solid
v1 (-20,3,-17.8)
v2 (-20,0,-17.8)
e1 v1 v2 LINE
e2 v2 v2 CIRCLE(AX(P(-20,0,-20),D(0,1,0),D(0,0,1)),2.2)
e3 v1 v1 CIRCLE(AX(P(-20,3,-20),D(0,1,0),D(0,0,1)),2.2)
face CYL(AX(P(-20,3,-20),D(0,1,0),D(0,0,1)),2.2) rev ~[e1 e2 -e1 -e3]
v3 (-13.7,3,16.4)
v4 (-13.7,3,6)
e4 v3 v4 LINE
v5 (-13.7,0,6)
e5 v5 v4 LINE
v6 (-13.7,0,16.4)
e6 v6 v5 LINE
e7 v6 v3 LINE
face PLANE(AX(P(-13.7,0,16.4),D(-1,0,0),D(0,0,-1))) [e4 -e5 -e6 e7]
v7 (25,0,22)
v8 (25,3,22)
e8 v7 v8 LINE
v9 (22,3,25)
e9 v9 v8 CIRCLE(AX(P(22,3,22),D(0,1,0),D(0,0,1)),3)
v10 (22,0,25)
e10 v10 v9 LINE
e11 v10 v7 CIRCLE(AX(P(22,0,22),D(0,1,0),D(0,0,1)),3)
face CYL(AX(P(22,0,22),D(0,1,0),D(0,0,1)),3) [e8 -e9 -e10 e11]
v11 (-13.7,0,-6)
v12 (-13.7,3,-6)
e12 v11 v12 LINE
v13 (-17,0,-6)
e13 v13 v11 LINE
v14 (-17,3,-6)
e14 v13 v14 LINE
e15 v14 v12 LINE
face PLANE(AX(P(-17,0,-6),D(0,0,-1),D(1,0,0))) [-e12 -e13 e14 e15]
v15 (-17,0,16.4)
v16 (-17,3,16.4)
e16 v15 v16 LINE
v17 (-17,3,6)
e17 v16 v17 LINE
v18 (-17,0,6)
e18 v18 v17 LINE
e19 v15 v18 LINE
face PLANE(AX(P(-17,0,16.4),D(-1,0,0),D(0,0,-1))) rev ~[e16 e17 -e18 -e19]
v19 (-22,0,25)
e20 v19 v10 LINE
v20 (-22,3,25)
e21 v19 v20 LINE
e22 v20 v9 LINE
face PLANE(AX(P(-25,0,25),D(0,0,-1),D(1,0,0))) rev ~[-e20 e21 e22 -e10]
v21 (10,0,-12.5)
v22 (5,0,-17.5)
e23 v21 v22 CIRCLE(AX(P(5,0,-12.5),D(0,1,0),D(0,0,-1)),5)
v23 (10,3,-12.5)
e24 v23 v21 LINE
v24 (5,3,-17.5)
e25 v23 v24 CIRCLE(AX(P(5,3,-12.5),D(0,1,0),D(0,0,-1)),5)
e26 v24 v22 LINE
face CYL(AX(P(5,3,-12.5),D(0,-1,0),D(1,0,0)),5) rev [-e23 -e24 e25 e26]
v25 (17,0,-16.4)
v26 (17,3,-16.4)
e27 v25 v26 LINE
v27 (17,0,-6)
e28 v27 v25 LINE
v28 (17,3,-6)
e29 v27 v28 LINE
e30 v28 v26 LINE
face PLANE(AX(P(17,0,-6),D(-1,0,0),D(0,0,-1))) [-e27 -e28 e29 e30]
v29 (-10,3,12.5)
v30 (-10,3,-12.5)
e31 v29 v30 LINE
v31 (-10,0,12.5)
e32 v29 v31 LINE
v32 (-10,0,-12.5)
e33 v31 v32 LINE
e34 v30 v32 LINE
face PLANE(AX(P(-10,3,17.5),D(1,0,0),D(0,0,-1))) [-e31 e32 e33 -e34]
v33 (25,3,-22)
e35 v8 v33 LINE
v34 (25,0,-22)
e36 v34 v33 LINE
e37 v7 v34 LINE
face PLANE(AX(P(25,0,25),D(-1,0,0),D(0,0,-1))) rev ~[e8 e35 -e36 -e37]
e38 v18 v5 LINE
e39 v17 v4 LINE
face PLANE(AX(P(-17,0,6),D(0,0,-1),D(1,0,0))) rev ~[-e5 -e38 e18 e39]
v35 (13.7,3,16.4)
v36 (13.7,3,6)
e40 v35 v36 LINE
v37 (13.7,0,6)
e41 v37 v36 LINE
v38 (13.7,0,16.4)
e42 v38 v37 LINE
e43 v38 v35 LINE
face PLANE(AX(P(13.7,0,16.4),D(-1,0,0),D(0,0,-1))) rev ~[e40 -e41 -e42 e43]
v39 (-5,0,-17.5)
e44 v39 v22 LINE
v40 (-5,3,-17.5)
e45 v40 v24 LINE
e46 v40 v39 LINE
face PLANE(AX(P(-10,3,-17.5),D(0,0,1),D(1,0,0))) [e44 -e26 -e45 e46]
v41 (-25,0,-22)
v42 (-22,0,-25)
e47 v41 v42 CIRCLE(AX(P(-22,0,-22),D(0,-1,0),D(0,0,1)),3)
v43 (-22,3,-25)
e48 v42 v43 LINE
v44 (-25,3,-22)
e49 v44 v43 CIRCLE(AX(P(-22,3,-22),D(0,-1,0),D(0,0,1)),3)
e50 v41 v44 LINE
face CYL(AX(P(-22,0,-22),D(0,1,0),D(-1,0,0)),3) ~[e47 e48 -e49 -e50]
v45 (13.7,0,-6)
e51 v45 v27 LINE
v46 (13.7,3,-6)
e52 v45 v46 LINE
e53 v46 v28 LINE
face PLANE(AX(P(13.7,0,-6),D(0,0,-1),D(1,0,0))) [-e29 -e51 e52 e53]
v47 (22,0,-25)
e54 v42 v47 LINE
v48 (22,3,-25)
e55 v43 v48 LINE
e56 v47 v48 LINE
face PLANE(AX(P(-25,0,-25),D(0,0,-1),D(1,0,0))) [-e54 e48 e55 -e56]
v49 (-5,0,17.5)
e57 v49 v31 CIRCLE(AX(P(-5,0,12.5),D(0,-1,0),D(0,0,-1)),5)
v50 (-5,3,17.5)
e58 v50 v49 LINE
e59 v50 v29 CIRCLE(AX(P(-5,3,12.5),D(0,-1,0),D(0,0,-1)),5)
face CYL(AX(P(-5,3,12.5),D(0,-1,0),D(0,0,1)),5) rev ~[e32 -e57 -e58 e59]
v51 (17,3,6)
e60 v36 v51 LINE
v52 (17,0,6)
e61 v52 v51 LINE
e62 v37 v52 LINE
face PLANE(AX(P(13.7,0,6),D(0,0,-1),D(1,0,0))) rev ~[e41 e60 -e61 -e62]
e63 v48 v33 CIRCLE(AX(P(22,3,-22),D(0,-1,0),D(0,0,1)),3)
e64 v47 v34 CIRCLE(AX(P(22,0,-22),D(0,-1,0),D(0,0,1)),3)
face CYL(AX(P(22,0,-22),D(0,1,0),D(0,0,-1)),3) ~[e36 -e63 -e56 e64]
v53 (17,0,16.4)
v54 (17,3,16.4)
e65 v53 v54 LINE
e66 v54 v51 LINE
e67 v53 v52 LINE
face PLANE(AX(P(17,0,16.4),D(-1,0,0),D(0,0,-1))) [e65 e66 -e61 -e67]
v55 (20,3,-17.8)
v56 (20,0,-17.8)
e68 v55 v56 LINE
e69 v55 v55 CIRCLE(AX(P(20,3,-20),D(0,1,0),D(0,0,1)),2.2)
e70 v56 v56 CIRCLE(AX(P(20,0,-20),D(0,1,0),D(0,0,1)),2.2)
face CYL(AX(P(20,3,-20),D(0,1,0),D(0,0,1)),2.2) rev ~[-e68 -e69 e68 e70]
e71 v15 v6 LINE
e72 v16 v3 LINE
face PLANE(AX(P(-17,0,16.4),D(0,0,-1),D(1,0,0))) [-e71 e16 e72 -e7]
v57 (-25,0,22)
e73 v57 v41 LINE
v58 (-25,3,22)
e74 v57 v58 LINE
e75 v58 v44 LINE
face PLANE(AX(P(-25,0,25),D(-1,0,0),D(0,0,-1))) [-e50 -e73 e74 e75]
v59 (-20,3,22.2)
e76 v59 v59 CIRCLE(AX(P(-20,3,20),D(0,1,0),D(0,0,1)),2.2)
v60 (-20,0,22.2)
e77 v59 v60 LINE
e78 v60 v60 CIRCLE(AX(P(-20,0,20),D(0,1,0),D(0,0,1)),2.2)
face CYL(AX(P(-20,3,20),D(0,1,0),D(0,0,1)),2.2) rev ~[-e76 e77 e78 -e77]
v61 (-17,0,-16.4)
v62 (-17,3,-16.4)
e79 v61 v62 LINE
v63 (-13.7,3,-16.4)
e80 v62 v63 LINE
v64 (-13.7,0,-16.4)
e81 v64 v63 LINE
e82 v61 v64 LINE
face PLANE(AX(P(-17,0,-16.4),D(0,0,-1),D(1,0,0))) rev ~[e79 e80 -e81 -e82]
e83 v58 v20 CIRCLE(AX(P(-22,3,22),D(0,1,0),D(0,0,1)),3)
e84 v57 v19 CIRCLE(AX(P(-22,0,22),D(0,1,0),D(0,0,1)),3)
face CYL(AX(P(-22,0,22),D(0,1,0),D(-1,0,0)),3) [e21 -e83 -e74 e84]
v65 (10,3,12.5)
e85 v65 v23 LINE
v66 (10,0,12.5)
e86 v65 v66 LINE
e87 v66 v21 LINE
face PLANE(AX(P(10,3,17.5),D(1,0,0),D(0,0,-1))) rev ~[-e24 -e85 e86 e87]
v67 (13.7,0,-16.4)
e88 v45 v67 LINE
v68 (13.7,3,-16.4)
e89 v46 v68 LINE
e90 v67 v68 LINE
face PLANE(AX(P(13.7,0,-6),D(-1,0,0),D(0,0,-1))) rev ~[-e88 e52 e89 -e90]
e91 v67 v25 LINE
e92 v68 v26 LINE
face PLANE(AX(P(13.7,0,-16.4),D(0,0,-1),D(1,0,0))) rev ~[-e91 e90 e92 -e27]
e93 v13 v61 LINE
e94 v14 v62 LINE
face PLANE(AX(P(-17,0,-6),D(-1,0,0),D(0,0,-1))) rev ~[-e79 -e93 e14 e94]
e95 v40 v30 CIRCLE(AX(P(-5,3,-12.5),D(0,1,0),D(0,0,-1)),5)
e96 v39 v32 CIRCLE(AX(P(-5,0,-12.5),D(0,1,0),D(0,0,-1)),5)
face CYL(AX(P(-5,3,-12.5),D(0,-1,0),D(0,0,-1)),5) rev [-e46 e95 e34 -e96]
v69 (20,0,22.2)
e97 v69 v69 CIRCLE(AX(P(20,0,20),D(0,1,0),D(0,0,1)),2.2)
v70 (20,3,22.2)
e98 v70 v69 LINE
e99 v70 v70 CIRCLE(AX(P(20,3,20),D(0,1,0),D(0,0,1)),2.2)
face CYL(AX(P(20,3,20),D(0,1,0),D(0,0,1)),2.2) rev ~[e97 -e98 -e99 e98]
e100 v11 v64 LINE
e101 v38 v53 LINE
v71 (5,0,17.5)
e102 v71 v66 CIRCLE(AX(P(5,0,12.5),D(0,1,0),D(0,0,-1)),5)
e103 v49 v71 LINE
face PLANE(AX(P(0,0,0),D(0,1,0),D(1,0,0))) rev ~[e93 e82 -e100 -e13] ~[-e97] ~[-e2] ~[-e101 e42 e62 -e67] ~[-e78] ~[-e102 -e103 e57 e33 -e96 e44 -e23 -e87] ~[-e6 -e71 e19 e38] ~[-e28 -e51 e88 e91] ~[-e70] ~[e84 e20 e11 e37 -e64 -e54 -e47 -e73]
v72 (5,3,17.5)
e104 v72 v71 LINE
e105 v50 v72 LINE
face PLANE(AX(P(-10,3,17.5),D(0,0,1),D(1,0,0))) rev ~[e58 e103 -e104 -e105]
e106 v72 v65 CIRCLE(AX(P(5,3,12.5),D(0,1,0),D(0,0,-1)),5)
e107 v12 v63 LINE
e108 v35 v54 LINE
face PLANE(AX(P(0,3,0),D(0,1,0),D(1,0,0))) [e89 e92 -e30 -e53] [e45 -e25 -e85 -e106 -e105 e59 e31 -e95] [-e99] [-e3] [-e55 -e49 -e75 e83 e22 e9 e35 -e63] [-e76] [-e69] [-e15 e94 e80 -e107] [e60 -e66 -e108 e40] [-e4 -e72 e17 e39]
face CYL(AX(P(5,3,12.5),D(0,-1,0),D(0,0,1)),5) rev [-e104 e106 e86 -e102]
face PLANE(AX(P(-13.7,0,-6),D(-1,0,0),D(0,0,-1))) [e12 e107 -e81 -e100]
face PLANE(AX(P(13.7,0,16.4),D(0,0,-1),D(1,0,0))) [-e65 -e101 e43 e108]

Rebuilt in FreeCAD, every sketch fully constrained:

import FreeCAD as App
import Part
import Sketcher

V = App.Vector


def edges_at(feature, points):
    """Names of the edges that pass closest to the given points."""
    edges = feature.Shape.Edges
    near = lambda p: min(range(len(edges)), key=lambda i: edges[i].distToShape(Part.Vertex(*p))[0])
    return sorted({f"Edge{near(p) + 1}" for p in points})


def add_polygon(sketch, points):
    """Adds a closed chain of lines whose ends are joined by coincident constraints."""
    first, n = sketch.GeometryCount, len(points)
    for a, b in zip(points, points[1:] + points[:1]):
        sketch.addGeometry(Part.LineSegment(App.Vector(*a, 0), App.Vector(*b, 0)), False)
    for i in range(n):
        sketch.addConstraint(Sketcher.Constraint("Coincident", first + i, 2, first + (i + 1) % n, 1))

doc = App.newDocument("Part")
body = doc.addObject("PartDesign::Body", "Body")

sketch1 = body.newObject("Sketcher::SketchObject", "Sketch")
sketch1.AttachmentSupport = (doc.getObject("XZ_Plane"), [""])
sketch1.MapMode = "FlatFace"
add_polygon(sketch1, [(-25, -25), (-25, 25), (25, 25), (25, -25)])
add_polygon(sketch1, [(-13.7, 16.4), (-17, 16.4), (-17, 6), (-13.7, 6)])
add_polygon(sketch1, [(17, 16.4), (13.7, 16.4), (13.7, 6), (17, 6)])
add_polygon(sketch1, [(-13.7, -6), (-17, -6), (-17, -16.4), (-13.7, -16.4)])
add_polygon(sketch1, [(17, -6), (13.7, -6), (13.7, -16.4), (17, -16.4)])
sketch1.addConstraint([
    Sketcher.Constraint("Vertical", 0),
    Sketcher.Constraint("Horizontal", 1),
    Sketcher.Constraint("Vertical", 2),
    Sketcher.Constraint("Horizontal", 3),
    Sketcher.Constraint("Horizontal", 4),
    Sketcher.Constraint("Vertical", 5),
    Sketcher.Constraint("Horizontal", 6),
    Sketcher.Constraint("Vertical", 7),
    Sketcher.Constraint("Horizontal", 8),
    Sketcher.Constraint("Vertical", 9),
    Sketcher.Constraint("Horizontal", 10),
    Sketcher.Constraint("Vertical", 11),
    Sketcher.Constraint("Horizontal", 12),
    Sketcher.Constraint("Vertical", 13),
    Sketcher.Constraint("Horizontal", 14),
    Sketcher.Constraint("Vertical", 15),
    Sketcher.Constraint("Horizontal", 16),
    Sketcher.Constraint("Vertical", 17),
    Sketcher.Constraint("Horizontal", 18),
    Sketcher.Constraint("Vertical", 19),
    Sketcher.Constraint("Symmetric", 0, 2, 2, 2, -1, 1),
    Sketcher.Constraint("Symmetric", 10, 2, 12, 2, -1, 1),
    Sketcher.Constraint("Symmetric", 8, 2, 14, 2, -1, 1),
    Sketcher.Constraint("Symmetric", 6, 2, 16, 2, -1, 1),
    Sketcher.Constraint("Symmetric", 4, 2, 18, 2, -1, 1),
    Sketcher.Constraint("Symmetric", 7, 2, 8, 2, -2),
    Sketcher.Constraint("Symmetric", 5, 2, 10, 2, -2),
    Sketcher.Constraint("Equal", 3, 0),
    Sketcher.Constraint("DistanceX", 1, 1, 1, 2, 50.0),
    Sketcher.Constraint("DistanceX", 4, 2, 4, 1, 3.3),
    Sketcher.Constraint("DistanceY", 5, 2, 5, 1, 10.4),
    Sketcher.Constraint("DistanceX", 4, 2, -1, 1, 17.0),
    Sketcher.Constraint("DistanceY", -1, 1, 5, 2, 6.0),
])
pad1 = body.newObject("PartDesign::Pad", "Pad")
pad1.Profile = sketch1
pad1.Length = 3
pad1.Reversed = True

sketch2 = body.newObject("Sketcher::SketchObject", "Sketch001")
sketch2.AttachmentSupport = (doc.getObject("XZ_Plane"), [""])
sketch2.MapMode = "FlatFace"
sketch2.AttachmentOffset = App.Placement(V(0, 0, -3), App.Rotation())
add_polygon(sketch2, [(-10, -17.5), (-10, 17.5), (10, 17.5), (10, -17.5)])
sketch2.addConstraint([
    Sketcher.Constraint("Vertical", 0),
    Sketcher.Constraint("Horizontal", 1),
    Sketcher.Constraint("Vertical", 2),
    Sketcher.Constraint("Horizontal", 3),
    Sketcher.Constraint("Symmetric", 0, 2, 2, 2, -1, 1),
    Sketcher.Constraint("DistanceX", 1, 1, 1, 2, 20.0),
    Sketcher.Constraint("DistanceY", 0, 1, 0, 2, 35.0),
])
pocket1 = body.newObject("PartDesign::Pocket", "Pocket")
pocket1.Profile = sketch2
pocket1.Length = 3
pocket1.Reversed = True
doc.recompute()

fillet = body.newObject("PartDesign::Fillet", "Fillet")
fillet.Base = (pocket1, edges_at(pocket1, [
    (10, 1.5, -17.5),
    (10, 1.5, 17.5),
    (-10, 1.5, 17.5),
    (-10, 1.5, -17.5),
]))
fillet.Radius = 5

sketch3 = body.newObject("Sketcher::SketchObject", "Sketch002")
sketch3.AttachmentSupport = (doc.getObject("XZ_Plane"), [""])
sketch3.MapMode = "FlatFace"
sketch3.AttachmentOffset = App.Placement(V(0, 0, -3), App.Rotation())
sketch3.addGeometry([
    Part.Circle(V(-20, -20, 0), V(0, 0, 1), 2.2),
    Part.Circle(V(20, -20, 0), V(0, 0, 1), 2.2),
    Part.Circle(V(20, 20, 0), V(0, 0, 1), 2.2),
    Part.Circle(V(-20, 20, 0), V(0, 0, 1), 2.2),
], False)
sketch3.addConstraint([
    Sketcher.Constraint("Equal", 0, 1),
    Sketcher.Constraint("Equal", 1, 2),
    Sketcher.Constraint("Equal", 2, 3),
    Sketcher.Constraint("Symmetric", 0, 3, 2, 3, -1, 1),
    Sketcher.Constraint("Symmetric", 1, 3, 3, 3, -1, 1),
    Sketcher.Constraint("Symmetric", 0, 3, 1, 3, -2),
    Sketcher.Constraint("Diameter", 0, 4.4),
    Sketcher.Constraint("DistanceX", 0, 3, -1, 1, 20.0),
    Sketcher.Constraint("DistanceY", 0, 3, -1, 1, 20.0),
])
pocket2 = body.newObject("PartDesign::Pocket", "Pocket001")
pocket2.Profile = sketch3
pocket2.Length = 3
pocket2.Reversed = True
doc.recompute()

fillet2 = body.newObject("PartDesign::Fillet", "Fillet001")
fillet2.Base = (pocket2, edges_at(pocket2, [
    (25, 1.5, 25),
    (-25, 1.5, 25),
    (-25, 1.5, -25),
    (25, 1.5, -25),
]))
fillet2.Radius = 3

doc.recompute()
